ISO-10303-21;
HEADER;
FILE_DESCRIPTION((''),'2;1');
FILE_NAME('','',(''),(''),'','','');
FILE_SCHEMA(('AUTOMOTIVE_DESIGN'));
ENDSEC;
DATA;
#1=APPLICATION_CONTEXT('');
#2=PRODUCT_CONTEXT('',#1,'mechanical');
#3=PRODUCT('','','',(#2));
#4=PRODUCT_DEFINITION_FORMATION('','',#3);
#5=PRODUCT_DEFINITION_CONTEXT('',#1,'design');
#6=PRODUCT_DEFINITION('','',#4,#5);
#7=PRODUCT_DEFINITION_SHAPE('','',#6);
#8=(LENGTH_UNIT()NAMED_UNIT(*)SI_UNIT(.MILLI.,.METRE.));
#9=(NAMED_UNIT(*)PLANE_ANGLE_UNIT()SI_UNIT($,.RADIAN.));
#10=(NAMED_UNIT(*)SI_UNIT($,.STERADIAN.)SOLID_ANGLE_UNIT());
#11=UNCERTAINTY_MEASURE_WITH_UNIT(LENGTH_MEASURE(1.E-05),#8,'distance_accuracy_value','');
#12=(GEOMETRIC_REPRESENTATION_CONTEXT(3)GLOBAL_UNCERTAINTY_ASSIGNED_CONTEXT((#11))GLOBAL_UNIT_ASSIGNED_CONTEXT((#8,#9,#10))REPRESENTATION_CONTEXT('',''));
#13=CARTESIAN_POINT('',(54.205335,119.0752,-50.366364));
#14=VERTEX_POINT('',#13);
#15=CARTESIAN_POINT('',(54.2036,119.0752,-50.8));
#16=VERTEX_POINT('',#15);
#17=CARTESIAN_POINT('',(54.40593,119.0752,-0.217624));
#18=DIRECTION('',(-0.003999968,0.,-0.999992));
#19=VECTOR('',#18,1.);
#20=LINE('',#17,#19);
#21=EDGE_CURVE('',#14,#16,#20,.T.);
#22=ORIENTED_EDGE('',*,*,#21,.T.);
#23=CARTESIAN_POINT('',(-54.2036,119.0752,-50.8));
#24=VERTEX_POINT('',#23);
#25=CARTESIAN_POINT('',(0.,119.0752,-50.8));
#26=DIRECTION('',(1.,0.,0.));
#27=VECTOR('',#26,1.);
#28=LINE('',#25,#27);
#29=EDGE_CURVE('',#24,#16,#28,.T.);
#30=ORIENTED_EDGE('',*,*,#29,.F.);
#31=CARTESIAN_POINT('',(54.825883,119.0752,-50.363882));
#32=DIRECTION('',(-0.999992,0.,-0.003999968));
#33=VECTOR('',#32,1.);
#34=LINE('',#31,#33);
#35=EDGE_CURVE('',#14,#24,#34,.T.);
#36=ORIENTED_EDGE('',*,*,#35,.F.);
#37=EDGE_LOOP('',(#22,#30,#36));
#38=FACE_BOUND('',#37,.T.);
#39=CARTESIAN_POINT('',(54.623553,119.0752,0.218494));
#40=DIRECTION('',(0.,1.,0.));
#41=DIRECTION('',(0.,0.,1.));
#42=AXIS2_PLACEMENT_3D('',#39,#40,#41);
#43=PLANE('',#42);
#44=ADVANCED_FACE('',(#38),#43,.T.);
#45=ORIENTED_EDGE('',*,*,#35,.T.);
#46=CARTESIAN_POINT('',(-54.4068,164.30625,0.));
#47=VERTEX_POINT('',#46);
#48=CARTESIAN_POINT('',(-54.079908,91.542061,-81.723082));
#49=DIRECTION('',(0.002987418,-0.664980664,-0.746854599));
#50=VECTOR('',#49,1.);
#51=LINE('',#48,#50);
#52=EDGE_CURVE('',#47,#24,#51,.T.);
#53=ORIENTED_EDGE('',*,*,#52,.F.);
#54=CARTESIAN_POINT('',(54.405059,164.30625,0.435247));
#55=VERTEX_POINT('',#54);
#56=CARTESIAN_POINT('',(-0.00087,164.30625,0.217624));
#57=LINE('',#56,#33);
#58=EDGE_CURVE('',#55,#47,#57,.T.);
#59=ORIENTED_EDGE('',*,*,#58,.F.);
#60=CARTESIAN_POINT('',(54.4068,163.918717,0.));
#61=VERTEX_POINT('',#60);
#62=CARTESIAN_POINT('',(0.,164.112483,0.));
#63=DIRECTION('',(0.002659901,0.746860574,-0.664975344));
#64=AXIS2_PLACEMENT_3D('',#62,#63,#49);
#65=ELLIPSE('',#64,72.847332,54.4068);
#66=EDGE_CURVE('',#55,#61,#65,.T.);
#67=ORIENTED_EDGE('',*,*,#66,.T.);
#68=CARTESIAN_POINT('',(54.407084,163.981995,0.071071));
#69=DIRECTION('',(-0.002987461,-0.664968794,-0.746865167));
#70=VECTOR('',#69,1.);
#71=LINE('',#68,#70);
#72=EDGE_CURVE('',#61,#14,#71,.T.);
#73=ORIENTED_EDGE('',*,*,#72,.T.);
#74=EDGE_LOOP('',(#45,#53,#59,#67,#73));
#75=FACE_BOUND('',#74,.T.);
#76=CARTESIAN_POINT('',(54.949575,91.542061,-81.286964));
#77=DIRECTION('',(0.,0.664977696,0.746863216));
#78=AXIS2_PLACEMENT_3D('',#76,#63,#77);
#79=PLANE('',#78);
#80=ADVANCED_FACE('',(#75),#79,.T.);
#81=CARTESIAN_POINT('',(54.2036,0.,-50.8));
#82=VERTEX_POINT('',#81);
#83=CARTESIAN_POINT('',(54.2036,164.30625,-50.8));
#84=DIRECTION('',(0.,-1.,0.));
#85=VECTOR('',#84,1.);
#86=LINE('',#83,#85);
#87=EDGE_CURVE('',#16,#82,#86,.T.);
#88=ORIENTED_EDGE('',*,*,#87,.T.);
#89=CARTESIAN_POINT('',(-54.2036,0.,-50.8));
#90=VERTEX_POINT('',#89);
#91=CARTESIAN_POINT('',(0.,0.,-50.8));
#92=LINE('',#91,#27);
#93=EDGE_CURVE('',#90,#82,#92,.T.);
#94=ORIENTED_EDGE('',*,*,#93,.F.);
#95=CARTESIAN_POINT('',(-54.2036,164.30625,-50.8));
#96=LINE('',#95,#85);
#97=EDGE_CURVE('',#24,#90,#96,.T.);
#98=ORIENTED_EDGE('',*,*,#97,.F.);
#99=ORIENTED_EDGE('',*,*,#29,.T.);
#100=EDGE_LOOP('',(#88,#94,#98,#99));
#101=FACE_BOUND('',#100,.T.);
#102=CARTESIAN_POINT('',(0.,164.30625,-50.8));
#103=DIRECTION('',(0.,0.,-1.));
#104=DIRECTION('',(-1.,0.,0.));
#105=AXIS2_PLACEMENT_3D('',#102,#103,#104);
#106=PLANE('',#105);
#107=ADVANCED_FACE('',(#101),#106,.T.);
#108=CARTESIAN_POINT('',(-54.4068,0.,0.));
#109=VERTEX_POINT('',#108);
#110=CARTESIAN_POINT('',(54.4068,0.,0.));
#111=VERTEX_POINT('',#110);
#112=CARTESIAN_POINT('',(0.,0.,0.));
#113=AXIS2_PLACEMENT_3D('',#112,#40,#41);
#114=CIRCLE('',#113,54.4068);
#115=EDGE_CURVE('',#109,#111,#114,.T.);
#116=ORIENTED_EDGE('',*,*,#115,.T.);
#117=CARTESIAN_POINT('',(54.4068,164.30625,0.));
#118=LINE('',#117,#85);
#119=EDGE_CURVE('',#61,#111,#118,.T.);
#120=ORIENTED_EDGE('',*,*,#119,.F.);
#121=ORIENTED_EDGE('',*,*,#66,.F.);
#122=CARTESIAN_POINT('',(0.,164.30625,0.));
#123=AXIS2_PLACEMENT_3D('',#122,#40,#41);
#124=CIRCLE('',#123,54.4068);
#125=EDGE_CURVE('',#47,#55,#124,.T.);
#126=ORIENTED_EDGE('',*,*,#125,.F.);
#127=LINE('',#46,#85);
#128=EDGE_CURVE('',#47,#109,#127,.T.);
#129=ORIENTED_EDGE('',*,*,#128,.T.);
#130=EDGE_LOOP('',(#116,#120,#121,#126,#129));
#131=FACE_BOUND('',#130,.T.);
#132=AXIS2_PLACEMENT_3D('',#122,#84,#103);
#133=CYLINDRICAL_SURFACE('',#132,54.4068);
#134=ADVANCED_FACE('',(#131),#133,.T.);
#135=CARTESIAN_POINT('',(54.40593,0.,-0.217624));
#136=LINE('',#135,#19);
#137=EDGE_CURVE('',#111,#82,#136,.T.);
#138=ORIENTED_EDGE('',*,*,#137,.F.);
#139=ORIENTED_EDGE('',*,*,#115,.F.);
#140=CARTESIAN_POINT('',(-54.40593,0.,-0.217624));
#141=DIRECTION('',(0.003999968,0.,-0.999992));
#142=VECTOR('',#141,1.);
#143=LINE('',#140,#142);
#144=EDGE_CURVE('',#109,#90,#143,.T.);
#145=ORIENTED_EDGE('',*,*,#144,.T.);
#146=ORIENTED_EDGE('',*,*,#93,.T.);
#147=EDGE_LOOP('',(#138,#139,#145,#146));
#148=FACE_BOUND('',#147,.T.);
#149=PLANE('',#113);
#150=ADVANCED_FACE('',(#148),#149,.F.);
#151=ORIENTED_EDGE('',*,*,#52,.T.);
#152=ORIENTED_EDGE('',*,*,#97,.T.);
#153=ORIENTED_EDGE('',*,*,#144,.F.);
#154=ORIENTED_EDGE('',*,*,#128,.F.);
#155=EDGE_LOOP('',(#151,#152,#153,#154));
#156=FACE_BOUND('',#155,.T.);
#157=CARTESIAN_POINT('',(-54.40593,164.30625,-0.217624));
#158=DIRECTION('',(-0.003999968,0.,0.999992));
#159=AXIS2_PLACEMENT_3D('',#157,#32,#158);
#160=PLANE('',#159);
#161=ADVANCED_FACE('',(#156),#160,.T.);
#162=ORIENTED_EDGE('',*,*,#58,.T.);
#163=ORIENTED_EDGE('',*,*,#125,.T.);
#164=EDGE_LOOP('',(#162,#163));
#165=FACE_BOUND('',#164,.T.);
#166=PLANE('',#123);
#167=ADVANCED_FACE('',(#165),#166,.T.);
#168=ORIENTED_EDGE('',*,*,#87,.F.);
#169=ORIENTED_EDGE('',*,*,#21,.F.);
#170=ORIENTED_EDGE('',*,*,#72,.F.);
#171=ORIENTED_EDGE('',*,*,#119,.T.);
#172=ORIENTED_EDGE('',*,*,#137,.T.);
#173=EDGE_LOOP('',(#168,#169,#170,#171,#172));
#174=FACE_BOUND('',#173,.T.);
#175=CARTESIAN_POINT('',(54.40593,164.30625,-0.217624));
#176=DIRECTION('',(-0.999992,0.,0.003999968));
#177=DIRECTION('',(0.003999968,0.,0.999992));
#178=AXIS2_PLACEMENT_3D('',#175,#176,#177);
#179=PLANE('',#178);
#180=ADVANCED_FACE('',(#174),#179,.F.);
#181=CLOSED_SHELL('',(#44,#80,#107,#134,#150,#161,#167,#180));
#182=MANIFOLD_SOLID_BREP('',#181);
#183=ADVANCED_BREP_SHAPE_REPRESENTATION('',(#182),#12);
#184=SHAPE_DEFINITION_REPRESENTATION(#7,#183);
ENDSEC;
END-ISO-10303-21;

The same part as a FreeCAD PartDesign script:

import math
import FreeCAD as App
import Part
import Sketcher

V = App.Vector
Q = App.Units.Quantity

doc = App.newDocument("Part")
body = doc.addObject("PartDesign::Body", "Body")

sketch1 = doc.addObject("Sketcher::SketchObject", "Sketch")
body.addObject(sketch1)
sketch1.AttachmentSupport = (doc.XZ_Plane, [""])
sketch1.MapMode = "FlatFace"
sketch1.addGeometry([
    Part.LineSegment(V(-54, -51, 0), V(-54, 0, 0)),
    Part.ArcOfCircle(Part.Circle(V(0, 0, 0), V(0, 0, 1), 54), math.radians(0), math.radians(180)),
    Part.LineSegment(V(54, 0, 0), V(54, -51, 0)),
    Part.LineSegment(V(54, -51, 0), V(-54, -51, 0)),
], False)
sketch1.addConstraint([
    Sketcher.Constraint("Coincident", 0, 2, 1, 2),
    Sketcher.Constraint("Coincident", 1, 1, 2, 1),
    Sketcher.Constraint("Coincident", 2, 2, 3, 1),
    Sketcher.Constraint("Coincident", 3, 2, 0, 1),
    Sketcher.Constraint("Horizontal", 3),
    Sketcher.Constraint("Coincident", 1, 3, -1, 1),
    Sketcher.Constraint("PointOnObject", 0, 2, -1),
    Sketcher.Constraint("PointOnObject", 1, 1, -1),
    Sketcher.Constraint("DistanceY", 2, 2, -1, 1, Q("2 in")),
    Sketcher.Constraint("Radius", 1, Q("2.142 in")),
    Sketcher.Constraint("DistanceX", 3, 2, 3, 1, Q("4.268 in")),
    Sketcher.Constraint("DistanceX", -1, 1, 2, 2, Q("2.134 in")),
])
pad1 = doc.addObject("PartDesign::Pad", "Pad")
body.addObject(pad1)
pad1.Profile = sketch1
pad1.Length = Q("6.46875 in")
pad1.Reversed = True

sketch2 = doc.addObject("Sketcher::SketchObject", "Sketch001")
body.addObject(sketch2)
sketch2.Placement = App.Placement(V(-54.40593, 0, -0.217624), App.Rotation(V(-0.003999968, 0, 0.999992), V(0, 1, 0), V(-0.999992, 0, -0.003999968), "ZXY"))
sketch2.addGeometry([
    Part.LineSegment(V(-51, 119, 0), V(0, 164, 0)),
    Part.LineSegment(V(0, 164, 0), V(-51, 164, 0)),
    Part.LineSegment(V(-51, 164, 0), V(-51, 119, 0)),
], False)
sketch2.addConstraint([
    Sketcher.Constraint("Coincident", 0, 2, 1, 1),
    Sketcher.Constraint("Coincident", 1, 2, 2, 1),
    Sketcher.Constraint("Coincident", 2, 2, 0, 1),
    Sketcher.Constraint("Horizontal", 1),
    Sketcher.Constraint("Vertical", 2),
    Sketcher.Constraint("DistanceY", -1, 1, 0, 2, Q("6.46875 in")),
    Sketcher.Constraint("DistanceY", -1, 1, 2, 2, Q("4.688 in")),
    Sketcher.Constraint("DistanceX", 1, 2, 1, 1, Q("50.800406 mm")),
    Sketcher.Constraint("DistanceX", 1, 2, -1, 1, Q("50.582781 mm")),
])
pocket1 = doc.addObject("PartDesign::Pocket", "Pocket")
body.addObject(pocket1)
pocket1.Profile = sketch2
pocket1.Type = "ThroughAll"

sketch3 = doc.addObject("Sketcher::SketchObject", "Sketch002")
body.addObject(sketch3)
sketch3.Placement = App.Placement(V(-54.40593, 0, -0.217624), App.Rotation(V(-0.003999968, 0, 0.999992), V(0, 1, 0), V(-0.999992, 0, -0.003999968), "ZXY"))
sketch3.addGeometry([
    Part.LineSegment(V(-51, 119, 0), V(0, 164, 0)),
    Part.LineSegment(V(0, 164, 0), V(0, 171, 0)),
    Part.LineSegment(V(0, 171, 0), V(-80, 171, 0)),
    Part.LineSegment(V(-80, 171, 0), V(-80, 119, 0)),
    Part.LineSegment(V(-80, 119, 0), V(-51, 119, 0)),
], False)
sketch3.addConstraint([
    Sketcher.Constraint("Coincident", 0, 2, 1, 1),
    Sketcher.Constraint("Coincident", 1, 2, 2, 1),
    Sketcher.Constraint("Coincident", 2, 2, 3, 1),
    Sketcher.Constraint("Coincident", 3, 2, 4, 1),
    Sketcher.Constraint("Coincident", 4, 2, 0, 1),
    Sketcher.Constraint("Vertical", 1),
    Sketcher.Constraint("Horizontal", 2),
    Sketcher.Constraint("Vertical", 3),
    Sketcher.Constraint("Horizontal", 4),
    Sketcher.Constraint("DistanceY", -1, 1, 0, 2, Q("6.46875 in")),
    Sketcher.Constraint("DistanceY", -1, 1, 3, 2, Q("4.688 in")),
    Sketcher.Constraint("DistanceX", 2, 2, 2, 1, Q("79.958721 mm")),
    Sketcher.Constraint("DistanceX", 4, 1, 4, 2, Q("29.158314 mm")),
    Sketcher.Constraint("DistanceY", 1, 1, 1, 2, Q("6.436944 mm")),
    Sketcher.Constraint("DistanceX", 4, 2, -1, 1, Q("50.582781 mm")),
])
pocket2 = doc.addObject("PartDesign::Pocket", "Pocket001")
body.addObject(pocket2)
pocket2.Profile = sketch3
pocket2.Type = "ThroughAll"

doc.recompute()
